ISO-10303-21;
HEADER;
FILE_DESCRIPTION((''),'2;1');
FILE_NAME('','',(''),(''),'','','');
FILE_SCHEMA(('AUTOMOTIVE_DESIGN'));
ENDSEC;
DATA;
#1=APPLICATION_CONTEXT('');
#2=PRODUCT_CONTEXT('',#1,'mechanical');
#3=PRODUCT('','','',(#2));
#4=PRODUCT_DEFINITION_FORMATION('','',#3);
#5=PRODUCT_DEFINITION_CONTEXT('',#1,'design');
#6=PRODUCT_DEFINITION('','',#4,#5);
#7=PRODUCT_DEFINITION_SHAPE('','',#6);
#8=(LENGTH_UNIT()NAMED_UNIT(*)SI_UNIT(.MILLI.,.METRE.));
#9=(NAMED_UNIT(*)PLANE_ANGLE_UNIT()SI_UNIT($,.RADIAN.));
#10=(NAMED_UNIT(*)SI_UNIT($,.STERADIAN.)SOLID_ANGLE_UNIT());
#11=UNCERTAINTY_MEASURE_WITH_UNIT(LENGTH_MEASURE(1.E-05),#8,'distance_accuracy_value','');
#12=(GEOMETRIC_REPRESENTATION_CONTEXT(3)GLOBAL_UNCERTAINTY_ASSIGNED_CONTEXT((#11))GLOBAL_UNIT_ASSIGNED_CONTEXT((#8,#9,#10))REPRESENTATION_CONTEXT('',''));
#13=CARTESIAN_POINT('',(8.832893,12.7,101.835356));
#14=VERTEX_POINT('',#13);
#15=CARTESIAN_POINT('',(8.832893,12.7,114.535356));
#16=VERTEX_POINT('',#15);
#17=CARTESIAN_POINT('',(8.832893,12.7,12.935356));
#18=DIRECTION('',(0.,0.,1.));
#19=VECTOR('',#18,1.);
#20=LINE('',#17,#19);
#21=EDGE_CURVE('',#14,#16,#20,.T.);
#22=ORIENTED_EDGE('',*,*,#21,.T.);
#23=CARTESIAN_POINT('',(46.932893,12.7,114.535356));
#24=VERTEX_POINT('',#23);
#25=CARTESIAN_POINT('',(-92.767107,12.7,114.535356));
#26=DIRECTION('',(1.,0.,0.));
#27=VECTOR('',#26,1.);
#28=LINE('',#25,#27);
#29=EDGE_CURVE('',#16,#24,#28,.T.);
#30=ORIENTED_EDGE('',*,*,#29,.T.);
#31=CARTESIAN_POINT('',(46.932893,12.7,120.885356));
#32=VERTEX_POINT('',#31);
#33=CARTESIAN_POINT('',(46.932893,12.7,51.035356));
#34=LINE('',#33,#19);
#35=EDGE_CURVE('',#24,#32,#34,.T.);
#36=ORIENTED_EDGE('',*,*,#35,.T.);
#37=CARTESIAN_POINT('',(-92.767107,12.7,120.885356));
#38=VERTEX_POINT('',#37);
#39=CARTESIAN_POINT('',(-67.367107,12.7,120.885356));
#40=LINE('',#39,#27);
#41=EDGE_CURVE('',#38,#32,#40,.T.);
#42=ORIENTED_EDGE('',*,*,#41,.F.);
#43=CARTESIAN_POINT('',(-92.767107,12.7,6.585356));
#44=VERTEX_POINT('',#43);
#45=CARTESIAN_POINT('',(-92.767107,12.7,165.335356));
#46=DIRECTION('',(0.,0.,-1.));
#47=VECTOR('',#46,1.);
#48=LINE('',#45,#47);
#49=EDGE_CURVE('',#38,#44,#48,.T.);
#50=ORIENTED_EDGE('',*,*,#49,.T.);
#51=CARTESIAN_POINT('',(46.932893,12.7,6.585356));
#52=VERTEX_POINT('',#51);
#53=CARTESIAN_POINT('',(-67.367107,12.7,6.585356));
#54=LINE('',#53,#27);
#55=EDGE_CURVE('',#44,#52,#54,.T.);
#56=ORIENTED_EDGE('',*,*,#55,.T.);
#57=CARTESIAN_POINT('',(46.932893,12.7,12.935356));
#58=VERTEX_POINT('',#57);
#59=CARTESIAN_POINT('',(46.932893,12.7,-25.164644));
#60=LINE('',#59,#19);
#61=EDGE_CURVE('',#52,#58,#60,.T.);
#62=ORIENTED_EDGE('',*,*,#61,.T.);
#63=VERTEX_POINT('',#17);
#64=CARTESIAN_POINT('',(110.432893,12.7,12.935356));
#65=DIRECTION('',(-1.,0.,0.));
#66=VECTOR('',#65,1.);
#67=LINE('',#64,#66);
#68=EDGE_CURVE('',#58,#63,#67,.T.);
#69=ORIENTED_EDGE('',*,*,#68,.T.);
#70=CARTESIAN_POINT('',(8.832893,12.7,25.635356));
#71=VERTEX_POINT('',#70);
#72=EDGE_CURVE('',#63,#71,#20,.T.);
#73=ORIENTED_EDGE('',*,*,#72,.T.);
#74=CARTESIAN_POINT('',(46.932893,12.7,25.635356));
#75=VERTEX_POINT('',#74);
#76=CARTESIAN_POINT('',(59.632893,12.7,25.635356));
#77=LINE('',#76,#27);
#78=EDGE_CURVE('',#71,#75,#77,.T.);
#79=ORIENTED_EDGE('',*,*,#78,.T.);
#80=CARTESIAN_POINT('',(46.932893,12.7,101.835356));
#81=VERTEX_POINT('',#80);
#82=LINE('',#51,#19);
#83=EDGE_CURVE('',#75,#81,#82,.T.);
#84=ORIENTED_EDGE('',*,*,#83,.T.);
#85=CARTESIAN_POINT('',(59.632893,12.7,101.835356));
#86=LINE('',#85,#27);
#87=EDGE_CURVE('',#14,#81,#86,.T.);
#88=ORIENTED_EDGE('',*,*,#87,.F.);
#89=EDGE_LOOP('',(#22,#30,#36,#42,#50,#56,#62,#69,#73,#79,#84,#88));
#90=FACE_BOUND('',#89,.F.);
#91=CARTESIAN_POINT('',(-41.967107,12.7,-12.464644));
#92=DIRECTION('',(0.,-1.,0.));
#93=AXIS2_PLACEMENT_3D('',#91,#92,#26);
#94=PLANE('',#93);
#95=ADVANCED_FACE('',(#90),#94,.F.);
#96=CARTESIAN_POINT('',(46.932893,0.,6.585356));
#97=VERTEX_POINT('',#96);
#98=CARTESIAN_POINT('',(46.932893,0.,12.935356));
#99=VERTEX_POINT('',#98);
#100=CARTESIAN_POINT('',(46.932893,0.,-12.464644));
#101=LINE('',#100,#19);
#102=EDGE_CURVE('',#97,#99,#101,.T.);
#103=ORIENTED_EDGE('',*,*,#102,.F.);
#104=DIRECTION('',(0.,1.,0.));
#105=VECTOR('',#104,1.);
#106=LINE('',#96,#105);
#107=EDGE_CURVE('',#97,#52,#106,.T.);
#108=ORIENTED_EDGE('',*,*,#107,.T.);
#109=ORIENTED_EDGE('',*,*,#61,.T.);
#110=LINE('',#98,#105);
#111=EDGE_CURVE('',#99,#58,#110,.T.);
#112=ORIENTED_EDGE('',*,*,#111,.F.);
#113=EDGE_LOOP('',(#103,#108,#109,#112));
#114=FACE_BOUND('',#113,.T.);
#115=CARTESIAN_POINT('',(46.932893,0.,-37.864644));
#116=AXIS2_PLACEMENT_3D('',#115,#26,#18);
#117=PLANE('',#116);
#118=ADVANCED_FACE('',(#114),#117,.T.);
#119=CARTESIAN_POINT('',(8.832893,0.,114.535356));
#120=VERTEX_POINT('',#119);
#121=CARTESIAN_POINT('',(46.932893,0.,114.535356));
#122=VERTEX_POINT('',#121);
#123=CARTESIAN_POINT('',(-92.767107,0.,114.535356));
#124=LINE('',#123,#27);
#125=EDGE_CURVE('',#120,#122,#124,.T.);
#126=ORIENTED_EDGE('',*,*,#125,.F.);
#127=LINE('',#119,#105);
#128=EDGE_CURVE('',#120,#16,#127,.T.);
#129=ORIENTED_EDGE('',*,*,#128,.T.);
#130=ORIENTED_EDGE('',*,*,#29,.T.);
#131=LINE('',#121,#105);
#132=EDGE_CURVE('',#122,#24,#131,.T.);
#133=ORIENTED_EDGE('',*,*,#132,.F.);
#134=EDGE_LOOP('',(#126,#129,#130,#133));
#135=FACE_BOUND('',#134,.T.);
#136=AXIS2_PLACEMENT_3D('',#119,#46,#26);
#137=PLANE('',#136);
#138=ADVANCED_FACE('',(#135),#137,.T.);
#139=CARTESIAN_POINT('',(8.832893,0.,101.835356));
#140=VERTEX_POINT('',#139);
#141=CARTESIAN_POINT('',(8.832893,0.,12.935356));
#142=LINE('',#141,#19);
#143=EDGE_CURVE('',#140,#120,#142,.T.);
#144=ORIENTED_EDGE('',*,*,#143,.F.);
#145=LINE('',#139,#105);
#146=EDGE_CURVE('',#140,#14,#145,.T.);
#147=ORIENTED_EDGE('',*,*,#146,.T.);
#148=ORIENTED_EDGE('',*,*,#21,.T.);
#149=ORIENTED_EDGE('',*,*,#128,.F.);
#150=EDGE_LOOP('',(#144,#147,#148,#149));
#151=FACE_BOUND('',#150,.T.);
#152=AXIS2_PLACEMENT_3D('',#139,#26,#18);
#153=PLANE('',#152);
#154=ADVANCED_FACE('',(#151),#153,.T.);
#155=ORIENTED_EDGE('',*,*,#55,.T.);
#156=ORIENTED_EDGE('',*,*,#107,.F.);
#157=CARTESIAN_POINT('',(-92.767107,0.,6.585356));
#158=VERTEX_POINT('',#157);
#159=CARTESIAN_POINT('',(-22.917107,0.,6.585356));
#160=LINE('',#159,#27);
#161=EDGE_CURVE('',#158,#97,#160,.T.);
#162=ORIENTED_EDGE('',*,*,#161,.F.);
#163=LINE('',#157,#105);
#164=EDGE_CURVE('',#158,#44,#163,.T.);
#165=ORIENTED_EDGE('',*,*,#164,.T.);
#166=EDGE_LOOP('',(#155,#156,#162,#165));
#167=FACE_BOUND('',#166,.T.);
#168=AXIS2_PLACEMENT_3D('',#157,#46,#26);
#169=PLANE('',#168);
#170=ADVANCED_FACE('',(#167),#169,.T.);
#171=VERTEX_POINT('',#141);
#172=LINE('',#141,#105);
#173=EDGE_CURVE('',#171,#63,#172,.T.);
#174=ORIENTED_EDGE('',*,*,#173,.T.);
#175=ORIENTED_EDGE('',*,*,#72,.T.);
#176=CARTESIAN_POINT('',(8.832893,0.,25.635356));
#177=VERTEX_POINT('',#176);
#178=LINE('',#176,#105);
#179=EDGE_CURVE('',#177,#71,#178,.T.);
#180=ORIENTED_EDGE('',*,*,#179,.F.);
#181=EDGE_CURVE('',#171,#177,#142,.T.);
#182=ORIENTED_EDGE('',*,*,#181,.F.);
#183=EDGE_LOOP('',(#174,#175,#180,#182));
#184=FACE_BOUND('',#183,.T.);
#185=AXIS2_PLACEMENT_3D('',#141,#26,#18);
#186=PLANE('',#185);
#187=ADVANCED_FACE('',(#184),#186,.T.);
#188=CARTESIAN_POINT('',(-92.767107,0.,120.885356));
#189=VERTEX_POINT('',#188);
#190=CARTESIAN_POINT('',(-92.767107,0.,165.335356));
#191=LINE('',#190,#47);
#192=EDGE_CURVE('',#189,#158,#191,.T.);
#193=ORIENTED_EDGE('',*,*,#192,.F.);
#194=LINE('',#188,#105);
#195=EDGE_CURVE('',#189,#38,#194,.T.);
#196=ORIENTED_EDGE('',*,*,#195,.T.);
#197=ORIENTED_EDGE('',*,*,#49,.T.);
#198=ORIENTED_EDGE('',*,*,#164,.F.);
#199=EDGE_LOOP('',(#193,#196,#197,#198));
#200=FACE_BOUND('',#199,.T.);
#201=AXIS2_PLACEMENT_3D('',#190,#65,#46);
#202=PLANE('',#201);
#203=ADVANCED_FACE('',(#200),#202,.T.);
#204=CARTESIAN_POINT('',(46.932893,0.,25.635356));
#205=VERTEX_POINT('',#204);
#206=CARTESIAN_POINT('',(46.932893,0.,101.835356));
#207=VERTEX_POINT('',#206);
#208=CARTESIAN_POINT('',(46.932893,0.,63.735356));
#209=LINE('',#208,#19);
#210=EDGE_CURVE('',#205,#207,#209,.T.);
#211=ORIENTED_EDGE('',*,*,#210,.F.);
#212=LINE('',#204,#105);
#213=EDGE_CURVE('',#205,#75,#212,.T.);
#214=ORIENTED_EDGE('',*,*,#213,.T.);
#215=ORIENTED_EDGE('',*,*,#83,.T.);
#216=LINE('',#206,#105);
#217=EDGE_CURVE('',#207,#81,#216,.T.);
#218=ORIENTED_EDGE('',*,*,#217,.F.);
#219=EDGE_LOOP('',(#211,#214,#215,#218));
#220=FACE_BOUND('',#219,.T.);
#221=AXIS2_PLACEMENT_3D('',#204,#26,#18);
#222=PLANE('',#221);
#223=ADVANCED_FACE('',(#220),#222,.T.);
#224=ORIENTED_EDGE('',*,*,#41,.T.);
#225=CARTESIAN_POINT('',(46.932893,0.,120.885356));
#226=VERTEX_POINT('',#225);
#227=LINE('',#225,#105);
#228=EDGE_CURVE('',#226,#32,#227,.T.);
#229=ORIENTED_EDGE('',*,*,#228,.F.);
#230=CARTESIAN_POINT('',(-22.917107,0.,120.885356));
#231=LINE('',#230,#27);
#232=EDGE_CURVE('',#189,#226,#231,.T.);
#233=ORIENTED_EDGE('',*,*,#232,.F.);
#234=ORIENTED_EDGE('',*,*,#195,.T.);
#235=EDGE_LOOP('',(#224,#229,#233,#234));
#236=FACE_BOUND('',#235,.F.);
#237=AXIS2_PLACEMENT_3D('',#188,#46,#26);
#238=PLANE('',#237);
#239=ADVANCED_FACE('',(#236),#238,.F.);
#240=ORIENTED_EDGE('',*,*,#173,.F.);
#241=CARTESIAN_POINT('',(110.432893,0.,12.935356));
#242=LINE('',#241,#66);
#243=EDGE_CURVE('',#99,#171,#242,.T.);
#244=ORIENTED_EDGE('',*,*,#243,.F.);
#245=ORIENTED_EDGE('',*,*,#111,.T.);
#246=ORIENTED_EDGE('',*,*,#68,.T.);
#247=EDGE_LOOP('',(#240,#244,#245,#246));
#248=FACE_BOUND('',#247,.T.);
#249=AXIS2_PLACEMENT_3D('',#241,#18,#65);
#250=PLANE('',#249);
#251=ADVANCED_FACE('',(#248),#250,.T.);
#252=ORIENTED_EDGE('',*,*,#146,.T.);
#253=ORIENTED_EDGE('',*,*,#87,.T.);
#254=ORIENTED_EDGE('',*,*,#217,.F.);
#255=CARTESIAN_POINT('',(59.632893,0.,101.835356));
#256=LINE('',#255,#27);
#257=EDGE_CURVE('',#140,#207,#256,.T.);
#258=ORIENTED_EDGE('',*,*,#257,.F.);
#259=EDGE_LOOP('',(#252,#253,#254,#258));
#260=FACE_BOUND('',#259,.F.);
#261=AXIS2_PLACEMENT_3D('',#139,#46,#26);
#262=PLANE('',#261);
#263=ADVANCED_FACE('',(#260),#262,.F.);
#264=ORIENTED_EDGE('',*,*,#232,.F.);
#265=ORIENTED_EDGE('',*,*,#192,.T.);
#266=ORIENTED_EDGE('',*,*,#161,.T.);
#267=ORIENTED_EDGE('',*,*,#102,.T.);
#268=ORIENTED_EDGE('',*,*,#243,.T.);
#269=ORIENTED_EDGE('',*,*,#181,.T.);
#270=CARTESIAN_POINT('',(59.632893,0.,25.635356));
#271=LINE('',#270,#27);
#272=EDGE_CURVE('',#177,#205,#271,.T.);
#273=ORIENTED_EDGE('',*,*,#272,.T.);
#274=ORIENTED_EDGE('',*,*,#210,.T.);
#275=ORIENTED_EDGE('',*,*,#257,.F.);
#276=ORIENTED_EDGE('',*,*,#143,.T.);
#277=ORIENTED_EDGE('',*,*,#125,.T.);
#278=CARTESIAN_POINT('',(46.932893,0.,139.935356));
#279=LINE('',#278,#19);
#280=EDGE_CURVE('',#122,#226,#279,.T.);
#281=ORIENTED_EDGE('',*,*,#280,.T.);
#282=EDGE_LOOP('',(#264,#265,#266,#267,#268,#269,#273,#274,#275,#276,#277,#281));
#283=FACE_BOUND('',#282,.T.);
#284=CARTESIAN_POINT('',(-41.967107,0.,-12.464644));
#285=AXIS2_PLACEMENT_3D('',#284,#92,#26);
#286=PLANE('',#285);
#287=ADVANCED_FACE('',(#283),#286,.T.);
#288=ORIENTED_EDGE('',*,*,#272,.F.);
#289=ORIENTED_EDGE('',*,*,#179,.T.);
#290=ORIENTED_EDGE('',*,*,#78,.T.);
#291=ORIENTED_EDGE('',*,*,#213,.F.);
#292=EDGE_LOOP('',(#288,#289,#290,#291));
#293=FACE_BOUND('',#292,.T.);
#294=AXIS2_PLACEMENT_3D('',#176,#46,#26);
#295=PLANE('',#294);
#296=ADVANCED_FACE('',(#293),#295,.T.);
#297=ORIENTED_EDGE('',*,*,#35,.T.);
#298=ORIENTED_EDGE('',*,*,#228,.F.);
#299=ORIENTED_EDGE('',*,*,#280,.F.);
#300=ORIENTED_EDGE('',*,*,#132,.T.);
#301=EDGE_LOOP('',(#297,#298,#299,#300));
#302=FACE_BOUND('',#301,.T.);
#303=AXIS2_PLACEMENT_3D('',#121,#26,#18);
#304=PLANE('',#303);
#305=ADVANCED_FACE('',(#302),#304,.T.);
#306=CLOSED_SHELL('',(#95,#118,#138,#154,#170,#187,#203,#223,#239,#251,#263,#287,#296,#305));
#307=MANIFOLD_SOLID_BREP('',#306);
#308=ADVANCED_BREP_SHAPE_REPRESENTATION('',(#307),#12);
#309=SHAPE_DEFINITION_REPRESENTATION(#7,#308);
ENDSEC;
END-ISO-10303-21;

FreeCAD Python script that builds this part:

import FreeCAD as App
import Part
import Sketcher
Q = App.Units.Quantity


def add_polygon(sketch, points):
    """Adds a closed chain of lines whose ends are joined by coincident constraints."""
    first, n = sketch.GeometryCount, len(points)
    for a, b in zip(points, points[1:] + points[:1]):
        sketch.addGeometry(Part.LineSegment(App.Vector(*a, 0), App.Vector(*b, 0)), False)
    for i in range(n):
        sketch.addConstraint(Sketcher.Constraint("Coincident", first + i, 2, first + (i + 1) % n, 1))

doc = App.newDocument("Part")
body = doc.addObject("PartDesign::Body", "Body")

# Sketch on XZ plane
sketch1 = body.newObject("Sketcher::SketchObject", "Sketch")
sketch1.AttachmentSupport = (doc.getObject("XZ_Plane"), [""])
sketch1.MapMode = "FlatFace"
add_polygon(sketch1, [(-93, -38), (110, -38), (110, 13), (9, 13), (9, 26), (110, 26), (110, 102), (9, 102), (9, 115), (110, 115), (110, 165), (-93, 165)])  # lines 0-11
sketch1.addConstraint([
    Sketcher.Constraint("Horizontal", 0),
    Sketcher.Constraint("Vertical", 1),
    Sketcher.Constraint("Horizontal", 2),
    Sketcher.Constraint("Vertical", 3),
    Sketcher.Constraint("Horizontal", 4),
    Sketcher.Constraint("Vertical", 5),
    Sketcher.Constraint("Horizontal", 6),
    Sketcher.Constraint("Vertical", 7),
    Sketcher.Constraint("Horizontal", 8),
    Sketcher.Constraint("Vertical", 9),
    Sketcher.Constraint("Horizontal", 10),
    Sketcher.Constraint("Vertical", 11),
    Sketcher.Constraint("Vertical", 1, 2, 4, 2),
    Sketcher.Constraint("Vertical", 3, 2, 6, 2),
    Sketcher.Constraint("Vertical", 5, 2, 8, 2),
    Sketcher.Constraint("Equal", 3, 7),
    Sketcher.Constraint("Equal", 1, 9),
    Sketcher.Constraint("Equal", 10, 11),
    Sketcher.Constraint("DistanceX", 0, 1, 0, 2, Q("8 in")),
    Sketcher.Constraint("DistanceX", 2, 2, 2, 1, Q("4 in")),
    Sketcher.Constraint("DistanceY", 1, 1, 1, 2, Q("2 in")),
    Sketcher.Constraint("DistanceY", 5, 1, 5, 2, Q("3 in")),
    Sketcher.Constraint("DistanceX", -1, 1, 0, 2, Q("110.432893 mm")),
    Sketcher.Constraint("DistanceY", 0, 2, -1, 1, Q("37.864644 mm")),
])
pad1 = body.newObject("PartDesign::Pad", "Pad")
pad1.Profile = sketch1
pad1.Length = Q("0.5 in")
pad1.Reversed = True

# Sketch on XZ plane
sketch2 = body.newObject("Sketcher::SketchObject", "Sketch001")
sketch2.AttachmentSupport = (doc.getObject("XZ_Plane"), [""])
sketch2.MapMode = "FlatFace"
add_polygon(sketch2, [(60, 165), (60, -38), (110, -38), (110, 165)])  # lines 0-3
sketch2.addConstraint([
    Sketcher.Constraint("Vertical", 0),
    Sketcher.Constraint("Horizontal", 1),
    Sketcher.Constraint("Vertical", 2),
    Sketcher.Constraint("Horizontal", 3),
    Sketcher.Constraint("DistanceX", 1, 1, 1, 2, Q("2 in")),
    Sketcher.Constraint("DistanceY", 0, 2, 0, 1, Q("8 in")),
    Sketcher.Constraint("DistanceX", -1, 1, 0, 2, Q("59.632893 mm")),
    Sketcher.Constraint("DistanceY", 0, 2, -1, 1, Q("37.864644 mm")),
])
pocket1 = body.newObject("PartDesign::Pocket", "Pocket")
pocket1.Profile = sketch2
pocket1.Length = Q("1 in")

# Sketch on XZ plane
sketch3 = body.newObject("Sketcher::SketchObject", "Sketch002")
sketch3.AttachmentSupport = (doc.getObject("XZ_Plane"), [""])
sketch3.MapMode = "FlatFace"
add_polygon(sketch3, [(47, 165), (47, 115), (60, 115), (60, 165)])  # lines 0-3
add_polygon(sketch3, [(47, 13), (47, -38), (60, -38), (60, 13)])  # lines 4-7
add_polygon(sketch3, [(47, 102), (47, 26), (60, 26), (60, 102)])  # lines 8-11
sketch3.addConstraint([
    Sketcher.Constraint("Vertical", 0),
    Sketcher.Constraint("Horizontal", 1),
    Sketcher.Constraint("Vertical", 2),
    Sketcher.Constraint("Horizontal", 3),
    Sketcher.Constraint("Vertical", 4),
    Sketcher.Constraint("Horizontal", 5),
    Sketcher.Constraint("Vertical", 6),
    Sketcher.Constraint("Horizontal", 7),
    Sketcher.Constraint("Vertical", 8),
    Sketcher.Constraint("Horizontal", 9),
    Sketcher.Constraint("Vertical", 10),
    Sketcher.Constraint("Horizontal", 11),
    Sketcher.Constraint("Vertical", 3, 2, 4, 2),
    Sketcher.Constraint("Vertical", 2, 2, 5, 2),
    Sketcher.Constraint("Vertical", 7, 2, 8, 2),
    Sketcher.Constraint("Vertical", 6, 2, 9, 2),
    Sketcher.Constraint("Equal", 2, 4),
    Sketcher.Constraint("DistanceY", 0, 2, 0, 1, Q("2 in")),
    Sketcher.Constraint("DistanceY", 8, 2, 8, 1, Q("3 in")),
    Sketcher.Constraint("DistanceX", 1, 1, 1, 2, Q("0.5 in")),
    Sketcher.Constraint("DistanceY", 4, 2, 0, 2, Q("6 in")),
    Sketcher.Constraint("DistanceY", 7, 2, 8, 2, Q("0.5 in")),
    Sketcher.Constraint("DistanceX", -1, 1, 0, 2, Q("46.932893 mm")),
    Sketcher.Constraint("DistanceY", -1, 1, 0, 2, Q("114.535356 mm")),
])
pocket2 = body.newObject("PartDesign::Pocket", "Pocket001")
pocket2.Profile = sketch3
pocket2.Length = Q("1 in")

# Sketch on XZ plane
sketch4 = body.newObject("Sketcher::SketchObject", "Sketch003")
sketch4.AttachmentSupport = (doc.getObject("XZ_Plane"), [""])
sketch4.MapMode = "FlatFace"
add_polygon(sketch4, [(-93, 165), (-93, 121), (47, 121), (47, 165)])  # lines 0-3
add_polygon(sketch4, [(-93, 7), (-93, -38), (47, -38), (47, 7)])  # lines 4-7
sketch4.addConstraint([
    Sketcher.Constraint("Vertical", 0),
    Sketcher.Constraint("Horizontal", 1),
    Sketcher.Constraint("Vertical", 2),
    Sketcher.Constraint("Horizontal", 3),
    Sketcher.Constraint("Vertical", 4),
    Sketcher.Constraint("Horizontal", 5),
    Sketcher.Constraint("Vertical", 6),
    Sketcher.Constraint("Horizontal", 7),
    Sketcher.Constraint("Vertical", 3, 2, 4, 2),
    Sketcher.Constraint("Vertical", 2, 2, 5, 2),
    Sketcher.Constraint("Equal", 2, 4),
    Sketcher.Constraint("DistanceX", 1, 1, 1, 2, Q("5.5 in")),
    Sketcher.Constraint("DistanceY", 4, 2, 3, 2, Q("8 in")),
    Sketcher.Constraint("DistanceY", 0, 2, 0, 1, Q("1.75 in")),
    Sketcher.Constraint("DistanceX", 0, 2, -1, 1, Q("92.767107 mm")),
    Sketcher.Constraint("DistanceY", -1, 1, 0, 2, Q("120.885356 mm")),
])
pocket3 = body.newObject("PartDesign::Pocket", "Pocket002")
pocket3.Profile = sketch4
pocket3.Length = Q("1 in")

doc.recompute()
